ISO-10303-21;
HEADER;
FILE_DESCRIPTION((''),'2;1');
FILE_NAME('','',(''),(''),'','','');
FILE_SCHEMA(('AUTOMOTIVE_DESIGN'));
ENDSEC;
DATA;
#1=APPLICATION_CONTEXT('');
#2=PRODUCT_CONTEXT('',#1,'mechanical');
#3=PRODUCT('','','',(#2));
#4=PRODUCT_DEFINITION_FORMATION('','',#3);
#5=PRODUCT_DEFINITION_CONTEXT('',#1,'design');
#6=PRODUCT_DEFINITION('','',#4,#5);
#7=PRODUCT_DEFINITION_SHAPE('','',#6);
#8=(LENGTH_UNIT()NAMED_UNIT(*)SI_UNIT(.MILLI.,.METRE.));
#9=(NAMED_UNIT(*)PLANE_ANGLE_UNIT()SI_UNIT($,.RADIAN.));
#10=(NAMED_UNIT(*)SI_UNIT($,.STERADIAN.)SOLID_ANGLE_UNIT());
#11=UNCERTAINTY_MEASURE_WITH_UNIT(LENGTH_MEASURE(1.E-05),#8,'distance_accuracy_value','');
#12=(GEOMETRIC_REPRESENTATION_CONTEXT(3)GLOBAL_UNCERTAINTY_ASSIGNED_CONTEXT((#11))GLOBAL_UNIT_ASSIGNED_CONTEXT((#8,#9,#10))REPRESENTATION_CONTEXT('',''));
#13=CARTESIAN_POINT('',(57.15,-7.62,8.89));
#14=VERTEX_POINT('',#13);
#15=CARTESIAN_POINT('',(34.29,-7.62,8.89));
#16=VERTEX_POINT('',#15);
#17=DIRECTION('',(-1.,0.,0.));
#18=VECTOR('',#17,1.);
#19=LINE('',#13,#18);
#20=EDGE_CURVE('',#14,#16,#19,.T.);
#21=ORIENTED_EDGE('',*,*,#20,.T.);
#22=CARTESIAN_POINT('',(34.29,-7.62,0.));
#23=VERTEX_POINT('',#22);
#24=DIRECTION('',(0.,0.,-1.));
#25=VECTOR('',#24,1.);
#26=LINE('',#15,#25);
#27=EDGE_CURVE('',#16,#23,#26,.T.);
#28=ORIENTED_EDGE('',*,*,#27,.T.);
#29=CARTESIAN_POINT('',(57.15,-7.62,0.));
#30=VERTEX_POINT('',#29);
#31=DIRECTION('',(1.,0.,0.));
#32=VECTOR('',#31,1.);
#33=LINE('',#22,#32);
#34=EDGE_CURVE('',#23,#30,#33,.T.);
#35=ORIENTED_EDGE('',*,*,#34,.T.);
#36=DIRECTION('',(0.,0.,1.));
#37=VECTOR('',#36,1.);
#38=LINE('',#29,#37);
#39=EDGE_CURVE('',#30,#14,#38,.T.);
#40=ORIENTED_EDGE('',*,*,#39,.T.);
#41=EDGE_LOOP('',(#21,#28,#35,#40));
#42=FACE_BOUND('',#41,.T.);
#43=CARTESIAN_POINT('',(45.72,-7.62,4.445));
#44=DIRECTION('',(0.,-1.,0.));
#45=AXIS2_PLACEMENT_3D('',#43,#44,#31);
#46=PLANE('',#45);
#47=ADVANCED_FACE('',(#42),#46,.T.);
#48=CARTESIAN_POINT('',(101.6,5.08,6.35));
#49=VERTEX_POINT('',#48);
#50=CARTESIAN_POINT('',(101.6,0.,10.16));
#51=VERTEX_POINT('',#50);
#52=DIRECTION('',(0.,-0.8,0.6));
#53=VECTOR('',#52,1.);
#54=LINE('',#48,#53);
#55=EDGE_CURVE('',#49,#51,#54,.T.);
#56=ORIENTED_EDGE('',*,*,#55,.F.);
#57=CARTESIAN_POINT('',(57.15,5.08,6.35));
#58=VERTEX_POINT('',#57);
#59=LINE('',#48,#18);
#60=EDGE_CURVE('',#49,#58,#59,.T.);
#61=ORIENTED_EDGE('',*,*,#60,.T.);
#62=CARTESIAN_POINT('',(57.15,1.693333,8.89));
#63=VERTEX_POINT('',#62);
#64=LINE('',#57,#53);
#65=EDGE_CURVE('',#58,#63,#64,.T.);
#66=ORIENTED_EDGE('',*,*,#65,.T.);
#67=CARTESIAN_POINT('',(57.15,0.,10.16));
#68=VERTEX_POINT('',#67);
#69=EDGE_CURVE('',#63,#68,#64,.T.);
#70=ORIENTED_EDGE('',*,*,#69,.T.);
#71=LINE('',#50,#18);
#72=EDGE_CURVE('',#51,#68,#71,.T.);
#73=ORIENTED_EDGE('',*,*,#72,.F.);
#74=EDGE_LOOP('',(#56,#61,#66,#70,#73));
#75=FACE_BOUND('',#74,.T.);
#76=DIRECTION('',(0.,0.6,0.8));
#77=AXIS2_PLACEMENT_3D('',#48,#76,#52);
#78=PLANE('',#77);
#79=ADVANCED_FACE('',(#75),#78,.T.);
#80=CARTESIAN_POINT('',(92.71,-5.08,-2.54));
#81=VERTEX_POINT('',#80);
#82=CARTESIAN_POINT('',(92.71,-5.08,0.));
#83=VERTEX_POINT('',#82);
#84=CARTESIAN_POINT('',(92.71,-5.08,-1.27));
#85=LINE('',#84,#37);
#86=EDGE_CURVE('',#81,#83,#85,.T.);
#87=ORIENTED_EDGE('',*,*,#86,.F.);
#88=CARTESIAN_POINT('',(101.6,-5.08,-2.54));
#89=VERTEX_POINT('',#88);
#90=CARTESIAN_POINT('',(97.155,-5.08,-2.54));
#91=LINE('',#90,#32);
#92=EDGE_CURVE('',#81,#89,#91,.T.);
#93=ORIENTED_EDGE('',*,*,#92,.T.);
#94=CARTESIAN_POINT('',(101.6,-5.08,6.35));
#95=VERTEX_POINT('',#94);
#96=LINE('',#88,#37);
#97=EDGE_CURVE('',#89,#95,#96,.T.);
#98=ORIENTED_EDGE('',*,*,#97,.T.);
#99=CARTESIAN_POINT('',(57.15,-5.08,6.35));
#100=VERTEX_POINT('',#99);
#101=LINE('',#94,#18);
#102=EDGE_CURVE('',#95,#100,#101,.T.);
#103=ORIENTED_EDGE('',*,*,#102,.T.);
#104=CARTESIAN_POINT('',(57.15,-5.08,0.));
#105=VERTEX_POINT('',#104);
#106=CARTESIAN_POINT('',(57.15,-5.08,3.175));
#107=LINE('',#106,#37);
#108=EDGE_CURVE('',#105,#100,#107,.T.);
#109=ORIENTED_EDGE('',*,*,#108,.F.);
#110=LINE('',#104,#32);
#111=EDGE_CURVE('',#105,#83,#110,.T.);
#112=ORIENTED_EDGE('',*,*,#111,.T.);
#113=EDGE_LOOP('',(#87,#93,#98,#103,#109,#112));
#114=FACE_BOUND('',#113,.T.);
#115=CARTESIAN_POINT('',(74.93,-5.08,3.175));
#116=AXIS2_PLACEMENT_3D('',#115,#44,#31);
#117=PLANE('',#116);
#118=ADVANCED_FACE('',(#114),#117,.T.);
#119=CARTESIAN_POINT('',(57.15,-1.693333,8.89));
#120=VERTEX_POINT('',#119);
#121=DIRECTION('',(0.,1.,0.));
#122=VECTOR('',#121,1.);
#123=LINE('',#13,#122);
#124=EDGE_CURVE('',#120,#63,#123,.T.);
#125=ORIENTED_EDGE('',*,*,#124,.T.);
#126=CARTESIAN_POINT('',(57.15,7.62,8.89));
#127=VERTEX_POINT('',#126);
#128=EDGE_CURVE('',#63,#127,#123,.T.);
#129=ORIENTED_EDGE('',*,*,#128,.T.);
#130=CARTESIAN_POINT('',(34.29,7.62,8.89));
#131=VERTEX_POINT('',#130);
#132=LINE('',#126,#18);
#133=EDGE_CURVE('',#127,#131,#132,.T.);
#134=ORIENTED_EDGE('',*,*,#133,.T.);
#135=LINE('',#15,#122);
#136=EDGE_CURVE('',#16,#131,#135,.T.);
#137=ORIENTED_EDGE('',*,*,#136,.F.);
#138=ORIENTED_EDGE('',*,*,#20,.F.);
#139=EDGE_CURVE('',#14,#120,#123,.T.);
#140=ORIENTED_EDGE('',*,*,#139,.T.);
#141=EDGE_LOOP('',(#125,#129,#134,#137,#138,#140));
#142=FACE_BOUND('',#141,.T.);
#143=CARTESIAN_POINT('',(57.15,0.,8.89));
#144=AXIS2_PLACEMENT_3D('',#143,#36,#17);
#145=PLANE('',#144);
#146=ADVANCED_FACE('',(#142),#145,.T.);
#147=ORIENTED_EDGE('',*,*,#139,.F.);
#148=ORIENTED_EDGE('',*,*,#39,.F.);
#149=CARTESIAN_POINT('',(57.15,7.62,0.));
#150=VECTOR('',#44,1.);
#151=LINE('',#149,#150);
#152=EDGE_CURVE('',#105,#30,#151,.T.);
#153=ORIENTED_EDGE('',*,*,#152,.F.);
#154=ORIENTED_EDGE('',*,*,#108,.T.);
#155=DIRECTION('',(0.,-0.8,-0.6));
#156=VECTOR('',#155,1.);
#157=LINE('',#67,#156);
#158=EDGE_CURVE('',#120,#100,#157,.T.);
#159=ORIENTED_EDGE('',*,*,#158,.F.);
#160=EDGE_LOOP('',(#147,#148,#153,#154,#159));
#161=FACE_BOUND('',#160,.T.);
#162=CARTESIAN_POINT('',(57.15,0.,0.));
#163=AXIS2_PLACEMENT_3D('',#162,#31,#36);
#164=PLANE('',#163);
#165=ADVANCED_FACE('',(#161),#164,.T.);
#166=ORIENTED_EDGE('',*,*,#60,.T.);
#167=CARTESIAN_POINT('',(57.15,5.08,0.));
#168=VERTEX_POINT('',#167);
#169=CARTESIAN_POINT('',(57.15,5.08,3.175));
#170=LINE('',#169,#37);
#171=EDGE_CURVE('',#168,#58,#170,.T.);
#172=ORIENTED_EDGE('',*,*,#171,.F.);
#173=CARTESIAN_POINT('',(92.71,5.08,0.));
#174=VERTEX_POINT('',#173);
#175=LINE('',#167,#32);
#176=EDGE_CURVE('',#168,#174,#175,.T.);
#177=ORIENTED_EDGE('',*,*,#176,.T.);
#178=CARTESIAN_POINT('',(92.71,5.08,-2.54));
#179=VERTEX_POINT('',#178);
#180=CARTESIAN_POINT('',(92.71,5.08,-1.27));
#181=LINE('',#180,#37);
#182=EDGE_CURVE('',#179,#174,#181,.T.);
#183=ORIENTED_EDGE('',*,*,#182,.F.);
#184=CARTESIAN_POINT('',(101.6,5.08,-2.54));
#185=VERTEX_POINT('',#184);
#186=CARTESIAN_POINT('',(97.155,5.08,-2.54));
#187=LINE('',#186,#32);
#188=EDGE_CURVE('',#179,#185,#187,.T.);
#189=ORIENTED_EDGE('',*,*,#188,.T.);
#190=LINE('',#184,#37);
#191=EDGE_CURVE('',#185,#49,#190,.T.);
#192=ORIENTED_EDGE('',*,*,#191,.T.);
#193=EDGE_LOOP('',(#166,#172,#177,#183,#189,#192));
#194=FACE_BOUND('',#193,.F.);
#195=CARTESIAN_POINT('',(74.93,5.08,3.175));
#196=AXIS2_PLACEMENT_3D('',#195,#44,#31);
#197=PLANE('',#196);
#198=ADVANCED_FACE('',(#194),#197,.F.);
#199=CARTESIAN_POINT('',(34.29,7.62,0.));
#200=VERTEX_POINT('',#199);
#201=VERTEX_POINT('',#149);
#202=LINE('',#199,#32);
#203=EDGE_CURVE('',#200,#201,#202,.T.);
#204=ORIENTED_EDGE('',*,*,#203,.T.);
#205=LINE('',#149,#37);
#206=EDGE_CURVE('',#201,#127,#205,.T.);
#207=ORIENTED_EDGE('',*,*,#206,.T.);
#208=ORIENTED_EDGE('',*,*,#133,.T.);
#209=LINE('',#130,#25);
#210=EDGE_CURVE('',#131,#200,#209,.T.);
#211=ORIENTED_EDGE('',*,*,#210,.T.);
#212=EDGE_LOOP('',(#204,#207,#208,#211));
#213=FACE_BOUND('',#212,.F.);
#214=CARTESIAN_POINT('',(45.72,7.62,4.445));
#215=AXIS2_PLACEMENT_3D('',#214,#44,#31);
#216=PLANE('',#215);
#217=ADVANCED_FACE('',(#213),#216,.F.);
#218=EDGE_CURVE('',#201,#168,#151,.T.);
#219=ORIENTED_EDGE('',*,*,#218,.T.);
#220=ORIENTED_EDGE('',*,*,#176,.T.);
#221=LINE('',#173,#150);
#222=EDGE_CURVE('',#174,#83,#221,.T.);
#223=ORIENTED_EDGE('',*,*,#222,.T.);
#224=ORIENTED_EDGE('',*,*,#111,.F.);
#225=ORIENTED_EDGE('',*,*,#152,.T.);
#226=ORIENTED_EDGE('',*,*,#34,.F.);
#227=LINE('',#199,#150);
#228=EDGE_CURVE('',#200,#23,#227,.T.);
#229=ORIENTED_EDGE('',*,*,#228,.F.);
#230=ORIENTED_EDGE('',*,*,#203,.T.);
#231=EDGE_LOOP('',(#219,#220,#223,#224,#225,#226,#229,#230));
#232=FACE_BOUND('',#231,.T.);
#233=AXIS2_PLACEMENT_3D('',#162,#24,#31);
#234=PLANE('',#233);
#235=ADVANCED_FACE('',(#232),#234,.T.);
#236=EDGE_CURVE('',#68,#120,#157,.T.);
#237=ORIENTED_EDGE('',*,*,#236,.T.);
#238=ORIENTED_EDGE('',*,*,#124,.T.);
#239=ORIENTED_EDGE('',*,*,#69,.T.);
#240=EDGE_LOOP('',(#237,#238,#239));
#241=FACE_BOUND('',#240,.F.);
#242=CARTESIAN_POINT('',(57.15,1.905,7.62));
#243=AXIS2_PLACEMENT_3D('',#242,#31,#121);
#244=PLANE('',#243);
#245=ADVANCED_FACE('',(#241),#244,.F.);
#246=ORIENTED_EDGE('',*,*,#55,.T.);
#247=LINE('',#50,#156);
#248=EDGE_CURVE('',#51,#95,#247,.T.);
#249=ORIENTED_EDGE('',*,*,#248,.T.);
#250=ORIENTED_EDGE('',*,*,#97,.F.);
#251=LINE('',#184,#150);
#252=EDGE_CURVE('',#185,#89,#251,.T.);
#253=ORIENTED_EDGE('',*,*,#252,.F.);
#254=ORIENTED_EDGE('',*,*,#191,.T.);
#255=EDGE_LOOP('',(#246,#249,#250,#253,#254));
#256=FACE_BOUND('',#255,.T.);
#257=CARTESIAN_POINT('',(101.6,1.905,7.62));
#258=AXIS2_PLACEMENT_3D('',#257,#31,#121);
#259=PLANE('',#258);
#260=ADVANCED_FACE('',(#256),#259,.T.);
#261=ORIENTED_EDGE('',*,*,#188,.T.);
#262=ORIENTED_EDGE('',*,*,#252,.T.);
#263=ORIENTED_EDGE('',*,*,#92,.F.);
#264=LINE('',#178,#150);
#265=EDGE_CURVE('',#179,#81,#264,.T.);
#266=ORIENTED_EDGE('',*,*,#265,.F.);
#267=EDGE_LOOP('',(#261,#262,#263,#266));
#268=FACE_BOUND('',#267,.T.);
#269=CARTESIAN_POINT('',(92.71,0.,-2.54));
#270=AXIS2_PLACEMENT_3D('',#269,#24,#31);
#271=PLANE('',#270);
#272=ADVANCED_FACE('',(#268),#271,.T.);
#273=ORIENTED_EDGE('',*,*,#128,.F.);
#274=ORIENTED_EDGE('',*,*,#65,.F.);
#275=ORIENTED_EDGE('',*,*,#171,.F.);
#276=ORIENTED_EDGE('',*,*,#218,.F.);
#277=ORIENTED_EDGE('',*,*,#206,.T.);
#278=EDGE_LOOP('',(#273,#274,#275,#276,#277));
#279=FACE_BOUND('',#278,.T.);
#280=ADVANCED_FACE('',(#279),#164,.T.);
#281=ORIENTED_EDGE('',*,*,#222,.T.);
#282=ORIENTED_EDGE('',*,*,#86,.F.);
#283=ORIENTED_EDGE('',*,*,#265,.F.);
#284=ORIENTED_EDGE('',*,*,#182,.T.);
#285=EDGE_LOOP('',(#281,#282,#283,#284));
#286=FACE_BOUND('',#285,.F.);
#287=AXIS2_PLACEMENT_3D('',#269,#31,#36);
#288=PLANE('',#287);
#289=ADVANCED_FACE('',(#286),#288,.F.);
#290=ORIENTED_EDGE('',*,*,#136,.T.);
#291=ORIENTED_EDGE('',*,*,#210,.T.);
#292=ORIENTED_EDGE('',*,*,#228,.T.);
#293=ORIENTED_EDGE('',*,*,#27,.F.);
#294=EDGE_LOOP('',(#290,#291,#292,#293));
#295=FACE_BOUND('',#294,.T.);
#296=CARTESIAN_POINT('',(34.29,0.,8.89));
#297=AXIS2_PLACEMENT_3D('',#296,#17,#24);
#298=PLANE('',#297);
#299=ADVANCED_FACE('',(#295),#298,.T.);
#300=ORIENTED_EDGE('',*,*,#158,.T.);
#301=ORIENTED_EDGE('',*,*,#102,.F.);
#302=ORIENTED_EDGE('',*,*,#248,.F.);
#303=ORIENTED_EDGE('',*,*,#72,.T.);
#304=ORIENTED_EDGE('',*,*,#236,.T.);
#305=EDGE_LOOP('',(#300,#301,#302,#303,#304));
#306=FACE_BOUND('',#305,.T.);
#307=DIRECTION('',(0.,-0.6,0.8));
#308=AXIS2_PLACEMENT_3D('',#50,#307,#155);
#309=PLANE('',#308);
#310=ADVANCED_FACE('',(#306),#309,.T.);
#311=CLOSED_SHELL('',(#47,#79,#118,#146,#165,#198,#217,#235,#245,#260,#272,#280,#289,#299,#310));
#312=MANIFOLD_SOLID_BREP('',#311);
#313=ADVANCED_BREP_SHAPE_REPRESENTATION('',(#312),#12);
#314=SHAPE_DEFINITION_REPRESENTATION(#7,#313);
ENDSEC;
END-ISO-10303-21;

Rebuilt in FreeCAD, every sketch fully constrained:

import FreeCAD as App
import Part
import Sketcher
from FreeCAD import Vector
Q = App.Units.Quantity


def add_polygon(sketch, points):
    """Adds a closed chain of lines whose ends are joined by coincident constraints."""
    first, n = sketch.GeometryCount, len(points)
    for a, b in zip(points, points[1:] + points[:1]):
        sketch.addGeometry(Part.LineSegment(App.Vector(*a, 0), App.Vector(*b, 0)), False)
    for i in range(n):
        sketch.addConstraint(Sketcher.Constraint("Coincident", first + i, 2, first + (i + 1) % n, 1))

doc = App.newDocument("Part")
body = doc.addObject("PartDesign::Body", "Body")

sketch1 = body.newObject("Sketcher::SketchObject", "Sketch")
sketch1.AttachmentSupport = (doc.getObject("XZ_Plane"), [""])
sketch1.MapMode = "FlatFace"
add_polygon(sketch1, [(34, 9), (34, 0), (57, 0), (57, 9)])
sketch1.addConstraint([
    Sketcher.Constraint("Vertical", 0),
    Sketcher.Constraint("Horizontal", 1),
    Sketcher.Constraint("Vertical", 2),
    Sketcher.Constraint("Horizontal", 3),
    Sketcher.Constraint("PointOnObject", 0, 2, -1),
    Sketcher.Constraint("DistanceX", 1, 1, 1, 2, Q("0.9 in")),
    Sketcher.Constraint("DistanceY", 0, 2, 0, 1, Q("0.35 in")),
    Sketcher.Constraint("DistanceX", -1, 1, 0, 2, Q("1.35 in")),
])
pad1 = body.newObject("PartDesign::Pad", "Pad")
pad1.Profile = sketch1
pad1.Length = Q("0.3 in")

sketch2 = body.newObject("Sketcher::SketchObject", "Sketch001")
sketch2.AttachmentSupport = (doc.getObject("XZ_Plane"), [""])
sketch2.MapMode = "FlatFace"
add_polygon(sketch2, [(34, 9), (34, 0), (57, 0), (57, 9)])
sketch2.addConstraint([
    Sketcher.Constraint("Vertical", 0),
    Sketcher.Constraint("Horizontal", 1),
    Sketcher.Constraint("Vertical", 2),
    Sketcher.Constraint("Horizontal", 3),
    Sketcher.Constraint("PointOnObject", 0, 2, -1),
    Sketcher.Constraint("DistanceX", 1, 1, 1, 2, Q("0.9 in")),
    Sketcher.Constraint("DistanceY", 0, 2, 0, 1, Q("0.35 in")),
    Sketcher.Constraint("DistanceX", -1, 1, 0, 2, Q("1.35 in")),
])
pad2 = body.newObject("PartDesign::Pad", "Pad001")
pad2.Profile = sketch2
pad2.Length = Q("0.3 in")
pad2.Reversed = True

sketch3 = body.newObject("Sketcher::SketchObject", "Sketch002")
sketch3.AttachmentSupport = (doc.getObject("XZ_Plane"), [""])
sketch3.MapMode = "FlatFace"
add_polygon(sketch3, [(57.1, 6.3), (57.1, 0), (92.7, 0), (92.7, -2.5), (101.6, -2.5), (101.6, 6.3)])
sketch3.addConstraint([
    Sketcher.Constraint("Vertical", 0),
    Sketcher.Constraint("Horizontal", 1),
    Sketcher.Constraint("Vertical", 2),
    Sketcher.Constraint("Horizontal", 3),
    Sketcher.Constraint("Vertical", 4),
    Sketcher.Constraint("Horizontal", 5),
    Sketcher.Constraint("PointOnObject", 0, 2, -1),
    Sketcher.Constraint("Equal", 3, 4),
    Sketcher.Constraint("DistanceX", 1, 1, 1, 2, Q("1.4 in")),
    Sketcher.Constraint("DistanceY", 2, 2, 2, 1, Q("0.1 in")),
    Sketcher.Constraint("DistanceX", -1, 1, 3, 2, Q("4 in")),
    Sketcher.Constraint("DistanceX", 3, 1, 3, 2, Q("0.35 in")),
])
pad3 = body.newObject("PartDesign::Pad", "Pad002")
pad3.Profile = sketch3
pad3.Length = Q("0.2 in")

sketch4 = body.newObject("Sketcher::SketchObject", "Sketch003")
sketch4.AttachmentSupport = (doc.getObject("XZ_Plane"), [""])
sketch4.MapMode = "FlatFace"
add_polygon(sketch4, [(57.1, 6.3), (57.1, 0), (92.7, 0), (92.7, -2.5), (101.6, -2.5), (101.6, 6.3)])
sketch4.addConstraint([
    Sketcher.Constraint("Vertical", 0),
    Sketcher.Constraint("Horizontal", 1),
    Sketcher.Constraint("Vertical", 2),
    Sketcher.Constraint("Horizontal", 3),
    Sketcher.Constraint("Vertical", 4),
    Sketcher.Constraint("Horizontal", 5),
    Sketcher.Constraint("PointOnObject", 0, 2, -1),
    Sketcher.Constraint("Equal", 3, 4),
    Sketcher.Constraint("DistanceX", 1, 1, 1, 2, Q("1.4 in")),
    Sketcher.Constraint("DistanceY", 2, 2, 2, 1, Q("0.1 in")),
    Sketcher.Constraint("DistanceX", -1, 1, 3, 2, Q("4 in")),
    Sketcher.Constraint("DistanceX", 3, 1, 3, 2, Q("0.35 in")),
])
pad4 = body.newObject("PartDesign::Pad", "Pad003")
pad4.Profile = sketch4
pad4.Length = Q("0.2 in")
pad4.Reversed = True

sketch5 = body.newObject("Sketcher::SketchObject", "Sketch004")
sketch5.AttachmentSupport = (doc.getObject("YZ_Plane"), [""])
sketch5.MapMode = "FlatFace"
sketch5.AttachmentOffset = App.Placement(Vector(0, 0, 4 * 25.4), App.Rotation())
add_polygon(sketch5, [(5, 6), (0, 10), (-5, 6)])
sketch5.addConstraint([
    Sketcher.Constraint("Horizontal", 2),
    Sketcher.Constraint("PointOnObject", 0, 2, -2),
    Sketcher.Constraint("Equal", 0, 1),
    Sketcher.Constraint("DistanceX", 2, 1, 2, 2, Q("0.4 in")),
    Sketcher.Constraint("DistanceY", -1, 1, 0, 2, Q("0.4 in")),
    Sketcher.Constraint("Distance", 0, Q("0.25 in")),
])
pad5 = body.newObject("PartDesign::Pad", "Pad004")
pad5.Profile = sketch5
pad5.Length = Q("1.75 in")
pad5.Reversed = True

doc.recompute()
